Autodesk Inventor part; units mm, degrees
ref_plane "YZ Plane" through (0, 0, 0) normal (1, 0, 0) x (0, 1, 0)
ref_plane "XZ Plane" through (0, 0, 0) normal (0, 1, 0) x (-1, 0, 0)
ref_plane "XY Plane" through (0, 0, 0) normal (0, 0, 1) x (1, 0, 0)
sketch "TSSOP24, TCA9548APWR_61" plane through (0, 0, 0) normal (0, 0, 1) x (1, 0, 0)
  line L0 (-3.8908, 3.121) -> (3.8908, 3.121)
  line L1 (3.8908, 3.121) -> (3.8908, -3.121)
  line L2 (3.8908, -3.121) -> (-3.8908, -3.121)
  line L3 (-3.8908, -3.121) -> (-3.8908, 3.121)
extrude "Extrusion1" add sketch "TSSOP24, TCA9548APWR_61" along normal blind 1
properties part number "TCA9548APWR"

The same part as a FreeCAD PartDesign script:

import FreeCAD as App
import Part
import Sketcher
Q = App.Units.Quantity

doc = App.newDocument("Part")
body = doc.addObject("PartDesign::Body", "Body")

sketch1 = body.newObject("Sketcher::SketchObject", "Sketch")
sketch1.AttachmentSupport = (doc.getObject("XY_Plane"), [""])
sketch1.MapMode = "FlatFace"
sketch1.addGeometry(Part.LineSegment(App.Vector(4, 3, 0), App.Vector(-4, 3, 0)), False)
sketch1.addGeometry(Part.LineSegment(App.Vector(-4, 3, 0), App.Vector(-4, -3, 0)), False)
sketch1.addGeometry(Part.LineSegment(App.Vector(-4, -3, 0), App.Vector(4, -3, 0)), False)
sketch1.addGeometry(Part.LineSegment(App.Vector(4, -3, 0), App.Vector(4, 3, 0)), False)
sketch1.addConstraint(Sketcher.Constraint("Coincident", 0, 2, 1, 1))
sketch1.addConstraint(Sketcher.Constraint("Coincident", 1, 2, 2, 1))
sketch1.addConstraint(Sketcher.Constraint("Coincident", 2, 2, 3, 1))
sketch1.addConstraint(Sketcher.Constraint("Coincident", 3, 2, 0, 1))
sketch1.addConstraint(Sketcher.Constraint("Horizontal", 0))
sketch1.addConstraint(Sketcher.Constraint("Vertical", 1))
sketch1.addConstraint(Sketcher.Constraint("Horizontal", 2))
sketch1.addConstraint(Sketcher.Constraint("Vertical", 3))
sketch1.addConstraint(Sketcher.Constraint("Symmetric", 0, 2, 2, 2, -1, 1))
sketch1.addConstraint(Sketcher.Constraint("DistanceY", 1, 2, 1, 1, Q("6.242 mm")))
sketch1.addConstraint(Sketcher.Constraint("DistanceX", 0, 2, 0, 1, Q("7.7816 mm")))
pad1 = body.newObject("PartDesign::Pad", "Pad")
pad1.Profile = sketch1
pad1.Length = 1

doc.recompute()
